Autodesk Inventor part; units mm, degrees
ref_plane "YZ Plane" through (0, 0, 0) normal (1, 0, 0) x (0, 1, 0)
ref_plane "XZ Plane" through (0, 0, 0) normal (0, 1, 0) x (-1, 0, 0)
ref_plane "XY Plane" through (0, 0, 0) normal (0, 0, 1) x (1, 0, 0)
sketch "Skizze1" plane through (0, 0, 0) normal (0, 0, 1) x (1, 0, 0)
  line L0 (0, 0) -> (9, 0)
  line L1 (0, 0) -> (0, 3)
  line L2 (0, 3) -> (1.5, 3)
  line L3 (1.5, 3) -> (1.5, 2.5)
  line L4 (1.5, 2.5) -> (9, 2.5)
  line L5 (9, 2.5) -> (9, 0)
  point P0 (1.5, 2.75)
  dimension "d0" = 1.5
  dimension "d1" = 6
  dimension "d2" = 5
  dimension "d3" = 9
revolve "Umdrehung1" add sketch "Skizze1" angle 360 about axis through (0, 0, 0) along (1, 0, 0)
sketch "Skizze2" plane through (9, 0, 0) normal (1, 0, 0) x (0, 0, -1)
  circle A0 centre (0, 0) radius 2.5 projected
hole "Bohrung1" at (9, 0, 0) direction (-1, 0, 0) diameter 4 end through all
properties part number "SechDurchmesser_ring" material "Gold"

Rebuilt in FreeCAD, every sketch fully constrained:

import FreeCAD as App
import Part
import Sketcher
from FreeCAD import Vector


def add_polygon(sketch, points):
    """Adds a closed chain of lines whose ends are joined by coincident constraints."""
    first, n = sketch.GeometryCount, len(points)
    for a, b in zip(points, points[1:] + points[:1]):
        sketch.addGeometry(Part.LineSegment(App.Vector(*a, 0), App.Vector(*b, 0)), False)
    for i in range(n):
        sketch.addConstraint(Sketcher.Constraint("Coincident", first + i, 2, first + (i + 1) % n, 1))

doc = App.newDocument("Part")
body = doc.addObject("PartDesign::Body", "Body")

# Sketch on XY plane
sketch1 = body.newObject("Sketcher::SketchObject", "Sketch")
sketch1.AttachmentSupport = (doc.getObject("XY_Plane"), [""])
sketch1.MapMode = "FlatFace"
add_polygon(sketch1, [(0, 3), (0, 0), (9, 0), (9, 2.5), (1.5, 2.5), (1.5, 3)])  # lines 0-5
sketch1.addConstraint([
    Sketcher.Constraint("Vertical", 0),
    Sketcher.Constraint("Horizontal", 1),
    Sketcher.Constraint("Vertical", 2),
    Sketcher.Constraint("Horizontal", 3),
    Sketcher.Constraint("Vertical", 4),
    Sketcher.Constraint("Horizontal", 5),
    Sketcher.Constraint("Coincident", 0, 2, -1, 1),
    Sketcher.Constraint("DistanceX", 1, 1, 1, 2, 9.0),
    Sketcher.Constraint("DistanceX", 5, 2, 5, 1, 1.5),
    Sketcher.Constraint("DistanceY", 0, 2, 0, 1, 3.0),
    Sketcher.Constraint("DistanceY", 2, 1, 2, 2, 2.5),
])
revolution = body.newObject("PartDesign::Revolution", "Revolution")
revolution.Profile = sketch1
revolution.ReferenceAxis = (sketch1, ["H_Axis"])
revolution.Angle = 360

# Sketch on YZ plane
sketch2 = body.newObject("Sketcher::SketchObject", "Sketch001")
sketch2.AttachmentSupport = (doc.getObject("YZ_Plane"), [""])
sketch2.MapMode = "FlatFace"
sketch2.AttachmentOffset = App.Placement(Vector(0, 0, 9), App.Rotation())
sketch2.addGeometry(Part.Circle(Vector(0, 0, 0), Vector(0, 0, 1), 2), False)
sketch2.addConstraint([
    Sketcher.Constraint("Coincident", 0, 3, -1, 1),
    Sketcher.Constraint("Diameter", 0, 4.0),
])
doc.recompute()
hole = body.newObject("PartDesign::Hole", "Hole")
hole.Profile = sketch2
hole.ThreadType = "None"
hole.Diameter = 4
hole.DepthType = "ThroughAll"

doc.recompute()
